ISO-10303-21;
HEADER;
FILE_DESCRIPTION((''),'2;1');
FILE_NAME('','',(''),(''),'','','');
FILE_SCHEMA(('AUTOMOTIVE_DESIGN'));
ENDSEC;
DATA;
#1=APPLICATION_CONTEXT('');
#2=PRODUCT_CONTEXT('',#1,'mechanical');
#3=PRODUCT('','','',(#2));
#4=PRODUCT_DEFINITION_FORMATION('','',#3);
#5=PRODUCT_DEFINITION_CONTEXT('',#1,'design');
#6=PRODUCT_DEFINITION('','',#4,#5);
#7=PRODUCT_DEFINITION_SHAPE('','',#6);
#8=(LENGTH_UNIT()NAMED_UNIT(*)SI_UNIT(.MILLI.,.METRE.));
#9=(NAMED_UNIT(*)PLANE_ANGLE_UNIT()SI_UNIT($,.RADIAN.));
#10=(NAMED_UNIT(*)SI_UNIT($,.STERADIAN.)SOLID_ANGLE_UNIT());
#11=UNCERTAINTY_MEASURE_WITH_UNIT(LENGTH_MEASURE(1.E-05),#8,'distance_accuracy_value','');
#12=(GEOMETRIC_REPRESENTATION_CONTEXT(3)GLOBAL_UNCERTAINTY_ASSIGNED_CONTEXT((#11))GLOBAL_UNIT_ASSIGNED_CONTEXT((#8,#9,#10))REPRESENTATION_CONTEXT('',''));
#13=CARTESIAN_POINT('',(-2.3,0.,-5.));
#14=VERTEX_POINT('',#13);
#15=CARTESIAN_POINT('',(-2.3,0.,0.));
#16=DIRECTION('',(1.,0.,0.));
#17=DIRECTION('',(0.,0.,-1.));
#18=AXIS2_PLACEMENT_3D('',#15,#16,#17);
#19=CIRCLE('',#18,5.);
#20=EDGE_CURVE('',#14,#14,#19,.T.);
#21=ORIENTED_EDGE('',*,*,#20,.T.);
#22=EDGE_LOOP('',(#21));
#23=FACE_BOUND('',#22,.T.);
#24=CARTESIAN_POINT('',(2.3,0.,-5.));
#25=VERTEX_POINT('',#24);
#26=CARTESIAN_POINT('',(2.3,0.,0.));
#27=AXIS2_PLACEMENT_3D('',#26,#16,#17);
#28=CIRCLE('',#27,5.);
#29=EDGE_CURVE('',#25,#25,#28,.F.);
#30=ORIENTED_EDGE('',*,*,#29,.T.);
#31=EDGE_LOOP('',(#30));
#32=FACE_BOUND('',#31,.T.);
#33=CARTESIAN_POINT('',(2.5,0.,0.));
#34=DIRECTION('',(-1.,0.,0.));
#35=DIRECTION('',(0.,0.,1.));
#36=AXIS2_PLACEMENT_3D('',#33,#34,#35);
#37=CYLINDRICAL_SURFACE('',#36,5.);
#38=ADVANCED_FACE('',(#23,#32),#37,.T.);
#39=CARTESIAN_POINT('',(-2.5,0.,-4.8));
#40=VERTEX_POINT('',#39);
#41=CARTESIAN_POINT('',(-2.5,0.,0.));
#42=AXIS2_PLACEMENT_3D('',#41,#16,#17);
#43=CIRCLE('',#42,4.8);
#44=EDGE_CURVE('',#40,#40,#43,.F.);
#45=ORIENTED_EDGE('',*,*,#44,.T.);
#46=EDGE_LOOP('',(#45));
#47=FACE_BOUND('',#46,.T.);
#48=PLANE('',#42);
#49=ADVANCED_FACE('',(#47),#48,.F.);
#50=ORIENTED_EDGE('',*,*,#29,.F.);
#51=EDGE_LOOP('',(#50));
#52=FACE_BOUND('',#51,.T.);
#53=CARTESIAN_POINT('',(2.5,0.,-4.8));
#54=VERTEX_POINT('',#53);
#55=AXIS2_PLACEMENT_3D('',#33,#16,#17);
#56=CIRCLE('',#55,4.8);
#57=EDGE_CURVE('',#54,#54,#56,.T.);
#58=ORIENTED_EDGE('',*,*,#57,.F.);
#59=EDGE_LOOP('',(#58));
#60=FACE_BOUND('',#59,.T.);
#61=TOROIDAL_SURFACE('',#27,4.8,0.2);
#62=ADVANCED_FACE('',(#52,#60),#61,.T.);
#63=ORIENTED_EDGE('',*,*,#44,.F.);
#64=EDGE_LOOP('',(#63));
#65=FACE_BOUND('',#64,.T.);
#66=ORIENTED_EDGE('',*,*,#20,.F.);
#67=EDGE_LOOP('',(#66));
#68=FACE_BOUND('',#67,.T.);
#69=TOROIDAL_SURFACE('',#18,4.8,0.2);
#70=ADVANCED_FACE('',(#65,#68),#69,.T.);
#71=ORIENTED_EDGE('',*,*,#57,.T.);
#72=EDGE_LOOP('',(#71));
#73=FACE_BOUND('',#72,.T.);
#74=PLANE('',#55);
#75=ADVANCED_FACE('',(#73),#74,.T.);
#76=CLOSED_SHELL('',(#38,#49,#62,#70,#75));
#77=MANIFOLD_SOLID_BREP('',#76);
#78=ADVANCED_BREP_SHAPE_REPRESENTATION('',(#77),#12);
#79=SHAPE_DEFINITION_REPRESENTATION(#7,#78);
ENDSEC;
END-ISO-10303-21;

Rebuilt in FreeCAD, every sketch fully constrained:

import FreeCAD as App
import Part
import Sketcher

V = App.Vector


def edges_at(feature, points):
    """Names of the edges that pass closest to the given points."""
    edges = feature.Shape.Edges
    near = lambda p: min(range(len(edges)), key=lambda i: edges[i].distToShape(Part.Vertex(*p))[0])
    return sorted({f"Edge{near(p) + 1}" for p in points})

doc = App.newDocument("Part")
body = doc.addObject("PartDesign::Body", "Body")

# Sketch on YZ plane
sketch1 = body.newObject("Sketcher::SketchObject", "Sketch")
sketch1.AttachmentSupport = (doc.getObject("YZ_Plane"), [""])
sketch1.MapMode = "FlatFace"
sketch1.addGeometry(Part.Circle(V(0, 0, 0), V(0, 0, 1), 5), False)
sketch1.addConstraint([
    Sketcher.Constraint("Coincident", 0, 3, -1, 1),
    Sketcher.Constraint("Diameter", 0, 10.0),
])
pad1 = body.newObject("PartDesign::Pad", "Pad")
pad1.Profile = sketch1
pad1.Length = 5
pad1.Midplane = True
doc.recompute()

fillet = body.newObject("PartDesign::Fillet", "Fillet")
fillet.Base = (pad1, edges_at(pad1, [(-2.5, 0, 5), (2.5, 0, 5)]))
fillet.Radius = 0.2

doc.recompute()
